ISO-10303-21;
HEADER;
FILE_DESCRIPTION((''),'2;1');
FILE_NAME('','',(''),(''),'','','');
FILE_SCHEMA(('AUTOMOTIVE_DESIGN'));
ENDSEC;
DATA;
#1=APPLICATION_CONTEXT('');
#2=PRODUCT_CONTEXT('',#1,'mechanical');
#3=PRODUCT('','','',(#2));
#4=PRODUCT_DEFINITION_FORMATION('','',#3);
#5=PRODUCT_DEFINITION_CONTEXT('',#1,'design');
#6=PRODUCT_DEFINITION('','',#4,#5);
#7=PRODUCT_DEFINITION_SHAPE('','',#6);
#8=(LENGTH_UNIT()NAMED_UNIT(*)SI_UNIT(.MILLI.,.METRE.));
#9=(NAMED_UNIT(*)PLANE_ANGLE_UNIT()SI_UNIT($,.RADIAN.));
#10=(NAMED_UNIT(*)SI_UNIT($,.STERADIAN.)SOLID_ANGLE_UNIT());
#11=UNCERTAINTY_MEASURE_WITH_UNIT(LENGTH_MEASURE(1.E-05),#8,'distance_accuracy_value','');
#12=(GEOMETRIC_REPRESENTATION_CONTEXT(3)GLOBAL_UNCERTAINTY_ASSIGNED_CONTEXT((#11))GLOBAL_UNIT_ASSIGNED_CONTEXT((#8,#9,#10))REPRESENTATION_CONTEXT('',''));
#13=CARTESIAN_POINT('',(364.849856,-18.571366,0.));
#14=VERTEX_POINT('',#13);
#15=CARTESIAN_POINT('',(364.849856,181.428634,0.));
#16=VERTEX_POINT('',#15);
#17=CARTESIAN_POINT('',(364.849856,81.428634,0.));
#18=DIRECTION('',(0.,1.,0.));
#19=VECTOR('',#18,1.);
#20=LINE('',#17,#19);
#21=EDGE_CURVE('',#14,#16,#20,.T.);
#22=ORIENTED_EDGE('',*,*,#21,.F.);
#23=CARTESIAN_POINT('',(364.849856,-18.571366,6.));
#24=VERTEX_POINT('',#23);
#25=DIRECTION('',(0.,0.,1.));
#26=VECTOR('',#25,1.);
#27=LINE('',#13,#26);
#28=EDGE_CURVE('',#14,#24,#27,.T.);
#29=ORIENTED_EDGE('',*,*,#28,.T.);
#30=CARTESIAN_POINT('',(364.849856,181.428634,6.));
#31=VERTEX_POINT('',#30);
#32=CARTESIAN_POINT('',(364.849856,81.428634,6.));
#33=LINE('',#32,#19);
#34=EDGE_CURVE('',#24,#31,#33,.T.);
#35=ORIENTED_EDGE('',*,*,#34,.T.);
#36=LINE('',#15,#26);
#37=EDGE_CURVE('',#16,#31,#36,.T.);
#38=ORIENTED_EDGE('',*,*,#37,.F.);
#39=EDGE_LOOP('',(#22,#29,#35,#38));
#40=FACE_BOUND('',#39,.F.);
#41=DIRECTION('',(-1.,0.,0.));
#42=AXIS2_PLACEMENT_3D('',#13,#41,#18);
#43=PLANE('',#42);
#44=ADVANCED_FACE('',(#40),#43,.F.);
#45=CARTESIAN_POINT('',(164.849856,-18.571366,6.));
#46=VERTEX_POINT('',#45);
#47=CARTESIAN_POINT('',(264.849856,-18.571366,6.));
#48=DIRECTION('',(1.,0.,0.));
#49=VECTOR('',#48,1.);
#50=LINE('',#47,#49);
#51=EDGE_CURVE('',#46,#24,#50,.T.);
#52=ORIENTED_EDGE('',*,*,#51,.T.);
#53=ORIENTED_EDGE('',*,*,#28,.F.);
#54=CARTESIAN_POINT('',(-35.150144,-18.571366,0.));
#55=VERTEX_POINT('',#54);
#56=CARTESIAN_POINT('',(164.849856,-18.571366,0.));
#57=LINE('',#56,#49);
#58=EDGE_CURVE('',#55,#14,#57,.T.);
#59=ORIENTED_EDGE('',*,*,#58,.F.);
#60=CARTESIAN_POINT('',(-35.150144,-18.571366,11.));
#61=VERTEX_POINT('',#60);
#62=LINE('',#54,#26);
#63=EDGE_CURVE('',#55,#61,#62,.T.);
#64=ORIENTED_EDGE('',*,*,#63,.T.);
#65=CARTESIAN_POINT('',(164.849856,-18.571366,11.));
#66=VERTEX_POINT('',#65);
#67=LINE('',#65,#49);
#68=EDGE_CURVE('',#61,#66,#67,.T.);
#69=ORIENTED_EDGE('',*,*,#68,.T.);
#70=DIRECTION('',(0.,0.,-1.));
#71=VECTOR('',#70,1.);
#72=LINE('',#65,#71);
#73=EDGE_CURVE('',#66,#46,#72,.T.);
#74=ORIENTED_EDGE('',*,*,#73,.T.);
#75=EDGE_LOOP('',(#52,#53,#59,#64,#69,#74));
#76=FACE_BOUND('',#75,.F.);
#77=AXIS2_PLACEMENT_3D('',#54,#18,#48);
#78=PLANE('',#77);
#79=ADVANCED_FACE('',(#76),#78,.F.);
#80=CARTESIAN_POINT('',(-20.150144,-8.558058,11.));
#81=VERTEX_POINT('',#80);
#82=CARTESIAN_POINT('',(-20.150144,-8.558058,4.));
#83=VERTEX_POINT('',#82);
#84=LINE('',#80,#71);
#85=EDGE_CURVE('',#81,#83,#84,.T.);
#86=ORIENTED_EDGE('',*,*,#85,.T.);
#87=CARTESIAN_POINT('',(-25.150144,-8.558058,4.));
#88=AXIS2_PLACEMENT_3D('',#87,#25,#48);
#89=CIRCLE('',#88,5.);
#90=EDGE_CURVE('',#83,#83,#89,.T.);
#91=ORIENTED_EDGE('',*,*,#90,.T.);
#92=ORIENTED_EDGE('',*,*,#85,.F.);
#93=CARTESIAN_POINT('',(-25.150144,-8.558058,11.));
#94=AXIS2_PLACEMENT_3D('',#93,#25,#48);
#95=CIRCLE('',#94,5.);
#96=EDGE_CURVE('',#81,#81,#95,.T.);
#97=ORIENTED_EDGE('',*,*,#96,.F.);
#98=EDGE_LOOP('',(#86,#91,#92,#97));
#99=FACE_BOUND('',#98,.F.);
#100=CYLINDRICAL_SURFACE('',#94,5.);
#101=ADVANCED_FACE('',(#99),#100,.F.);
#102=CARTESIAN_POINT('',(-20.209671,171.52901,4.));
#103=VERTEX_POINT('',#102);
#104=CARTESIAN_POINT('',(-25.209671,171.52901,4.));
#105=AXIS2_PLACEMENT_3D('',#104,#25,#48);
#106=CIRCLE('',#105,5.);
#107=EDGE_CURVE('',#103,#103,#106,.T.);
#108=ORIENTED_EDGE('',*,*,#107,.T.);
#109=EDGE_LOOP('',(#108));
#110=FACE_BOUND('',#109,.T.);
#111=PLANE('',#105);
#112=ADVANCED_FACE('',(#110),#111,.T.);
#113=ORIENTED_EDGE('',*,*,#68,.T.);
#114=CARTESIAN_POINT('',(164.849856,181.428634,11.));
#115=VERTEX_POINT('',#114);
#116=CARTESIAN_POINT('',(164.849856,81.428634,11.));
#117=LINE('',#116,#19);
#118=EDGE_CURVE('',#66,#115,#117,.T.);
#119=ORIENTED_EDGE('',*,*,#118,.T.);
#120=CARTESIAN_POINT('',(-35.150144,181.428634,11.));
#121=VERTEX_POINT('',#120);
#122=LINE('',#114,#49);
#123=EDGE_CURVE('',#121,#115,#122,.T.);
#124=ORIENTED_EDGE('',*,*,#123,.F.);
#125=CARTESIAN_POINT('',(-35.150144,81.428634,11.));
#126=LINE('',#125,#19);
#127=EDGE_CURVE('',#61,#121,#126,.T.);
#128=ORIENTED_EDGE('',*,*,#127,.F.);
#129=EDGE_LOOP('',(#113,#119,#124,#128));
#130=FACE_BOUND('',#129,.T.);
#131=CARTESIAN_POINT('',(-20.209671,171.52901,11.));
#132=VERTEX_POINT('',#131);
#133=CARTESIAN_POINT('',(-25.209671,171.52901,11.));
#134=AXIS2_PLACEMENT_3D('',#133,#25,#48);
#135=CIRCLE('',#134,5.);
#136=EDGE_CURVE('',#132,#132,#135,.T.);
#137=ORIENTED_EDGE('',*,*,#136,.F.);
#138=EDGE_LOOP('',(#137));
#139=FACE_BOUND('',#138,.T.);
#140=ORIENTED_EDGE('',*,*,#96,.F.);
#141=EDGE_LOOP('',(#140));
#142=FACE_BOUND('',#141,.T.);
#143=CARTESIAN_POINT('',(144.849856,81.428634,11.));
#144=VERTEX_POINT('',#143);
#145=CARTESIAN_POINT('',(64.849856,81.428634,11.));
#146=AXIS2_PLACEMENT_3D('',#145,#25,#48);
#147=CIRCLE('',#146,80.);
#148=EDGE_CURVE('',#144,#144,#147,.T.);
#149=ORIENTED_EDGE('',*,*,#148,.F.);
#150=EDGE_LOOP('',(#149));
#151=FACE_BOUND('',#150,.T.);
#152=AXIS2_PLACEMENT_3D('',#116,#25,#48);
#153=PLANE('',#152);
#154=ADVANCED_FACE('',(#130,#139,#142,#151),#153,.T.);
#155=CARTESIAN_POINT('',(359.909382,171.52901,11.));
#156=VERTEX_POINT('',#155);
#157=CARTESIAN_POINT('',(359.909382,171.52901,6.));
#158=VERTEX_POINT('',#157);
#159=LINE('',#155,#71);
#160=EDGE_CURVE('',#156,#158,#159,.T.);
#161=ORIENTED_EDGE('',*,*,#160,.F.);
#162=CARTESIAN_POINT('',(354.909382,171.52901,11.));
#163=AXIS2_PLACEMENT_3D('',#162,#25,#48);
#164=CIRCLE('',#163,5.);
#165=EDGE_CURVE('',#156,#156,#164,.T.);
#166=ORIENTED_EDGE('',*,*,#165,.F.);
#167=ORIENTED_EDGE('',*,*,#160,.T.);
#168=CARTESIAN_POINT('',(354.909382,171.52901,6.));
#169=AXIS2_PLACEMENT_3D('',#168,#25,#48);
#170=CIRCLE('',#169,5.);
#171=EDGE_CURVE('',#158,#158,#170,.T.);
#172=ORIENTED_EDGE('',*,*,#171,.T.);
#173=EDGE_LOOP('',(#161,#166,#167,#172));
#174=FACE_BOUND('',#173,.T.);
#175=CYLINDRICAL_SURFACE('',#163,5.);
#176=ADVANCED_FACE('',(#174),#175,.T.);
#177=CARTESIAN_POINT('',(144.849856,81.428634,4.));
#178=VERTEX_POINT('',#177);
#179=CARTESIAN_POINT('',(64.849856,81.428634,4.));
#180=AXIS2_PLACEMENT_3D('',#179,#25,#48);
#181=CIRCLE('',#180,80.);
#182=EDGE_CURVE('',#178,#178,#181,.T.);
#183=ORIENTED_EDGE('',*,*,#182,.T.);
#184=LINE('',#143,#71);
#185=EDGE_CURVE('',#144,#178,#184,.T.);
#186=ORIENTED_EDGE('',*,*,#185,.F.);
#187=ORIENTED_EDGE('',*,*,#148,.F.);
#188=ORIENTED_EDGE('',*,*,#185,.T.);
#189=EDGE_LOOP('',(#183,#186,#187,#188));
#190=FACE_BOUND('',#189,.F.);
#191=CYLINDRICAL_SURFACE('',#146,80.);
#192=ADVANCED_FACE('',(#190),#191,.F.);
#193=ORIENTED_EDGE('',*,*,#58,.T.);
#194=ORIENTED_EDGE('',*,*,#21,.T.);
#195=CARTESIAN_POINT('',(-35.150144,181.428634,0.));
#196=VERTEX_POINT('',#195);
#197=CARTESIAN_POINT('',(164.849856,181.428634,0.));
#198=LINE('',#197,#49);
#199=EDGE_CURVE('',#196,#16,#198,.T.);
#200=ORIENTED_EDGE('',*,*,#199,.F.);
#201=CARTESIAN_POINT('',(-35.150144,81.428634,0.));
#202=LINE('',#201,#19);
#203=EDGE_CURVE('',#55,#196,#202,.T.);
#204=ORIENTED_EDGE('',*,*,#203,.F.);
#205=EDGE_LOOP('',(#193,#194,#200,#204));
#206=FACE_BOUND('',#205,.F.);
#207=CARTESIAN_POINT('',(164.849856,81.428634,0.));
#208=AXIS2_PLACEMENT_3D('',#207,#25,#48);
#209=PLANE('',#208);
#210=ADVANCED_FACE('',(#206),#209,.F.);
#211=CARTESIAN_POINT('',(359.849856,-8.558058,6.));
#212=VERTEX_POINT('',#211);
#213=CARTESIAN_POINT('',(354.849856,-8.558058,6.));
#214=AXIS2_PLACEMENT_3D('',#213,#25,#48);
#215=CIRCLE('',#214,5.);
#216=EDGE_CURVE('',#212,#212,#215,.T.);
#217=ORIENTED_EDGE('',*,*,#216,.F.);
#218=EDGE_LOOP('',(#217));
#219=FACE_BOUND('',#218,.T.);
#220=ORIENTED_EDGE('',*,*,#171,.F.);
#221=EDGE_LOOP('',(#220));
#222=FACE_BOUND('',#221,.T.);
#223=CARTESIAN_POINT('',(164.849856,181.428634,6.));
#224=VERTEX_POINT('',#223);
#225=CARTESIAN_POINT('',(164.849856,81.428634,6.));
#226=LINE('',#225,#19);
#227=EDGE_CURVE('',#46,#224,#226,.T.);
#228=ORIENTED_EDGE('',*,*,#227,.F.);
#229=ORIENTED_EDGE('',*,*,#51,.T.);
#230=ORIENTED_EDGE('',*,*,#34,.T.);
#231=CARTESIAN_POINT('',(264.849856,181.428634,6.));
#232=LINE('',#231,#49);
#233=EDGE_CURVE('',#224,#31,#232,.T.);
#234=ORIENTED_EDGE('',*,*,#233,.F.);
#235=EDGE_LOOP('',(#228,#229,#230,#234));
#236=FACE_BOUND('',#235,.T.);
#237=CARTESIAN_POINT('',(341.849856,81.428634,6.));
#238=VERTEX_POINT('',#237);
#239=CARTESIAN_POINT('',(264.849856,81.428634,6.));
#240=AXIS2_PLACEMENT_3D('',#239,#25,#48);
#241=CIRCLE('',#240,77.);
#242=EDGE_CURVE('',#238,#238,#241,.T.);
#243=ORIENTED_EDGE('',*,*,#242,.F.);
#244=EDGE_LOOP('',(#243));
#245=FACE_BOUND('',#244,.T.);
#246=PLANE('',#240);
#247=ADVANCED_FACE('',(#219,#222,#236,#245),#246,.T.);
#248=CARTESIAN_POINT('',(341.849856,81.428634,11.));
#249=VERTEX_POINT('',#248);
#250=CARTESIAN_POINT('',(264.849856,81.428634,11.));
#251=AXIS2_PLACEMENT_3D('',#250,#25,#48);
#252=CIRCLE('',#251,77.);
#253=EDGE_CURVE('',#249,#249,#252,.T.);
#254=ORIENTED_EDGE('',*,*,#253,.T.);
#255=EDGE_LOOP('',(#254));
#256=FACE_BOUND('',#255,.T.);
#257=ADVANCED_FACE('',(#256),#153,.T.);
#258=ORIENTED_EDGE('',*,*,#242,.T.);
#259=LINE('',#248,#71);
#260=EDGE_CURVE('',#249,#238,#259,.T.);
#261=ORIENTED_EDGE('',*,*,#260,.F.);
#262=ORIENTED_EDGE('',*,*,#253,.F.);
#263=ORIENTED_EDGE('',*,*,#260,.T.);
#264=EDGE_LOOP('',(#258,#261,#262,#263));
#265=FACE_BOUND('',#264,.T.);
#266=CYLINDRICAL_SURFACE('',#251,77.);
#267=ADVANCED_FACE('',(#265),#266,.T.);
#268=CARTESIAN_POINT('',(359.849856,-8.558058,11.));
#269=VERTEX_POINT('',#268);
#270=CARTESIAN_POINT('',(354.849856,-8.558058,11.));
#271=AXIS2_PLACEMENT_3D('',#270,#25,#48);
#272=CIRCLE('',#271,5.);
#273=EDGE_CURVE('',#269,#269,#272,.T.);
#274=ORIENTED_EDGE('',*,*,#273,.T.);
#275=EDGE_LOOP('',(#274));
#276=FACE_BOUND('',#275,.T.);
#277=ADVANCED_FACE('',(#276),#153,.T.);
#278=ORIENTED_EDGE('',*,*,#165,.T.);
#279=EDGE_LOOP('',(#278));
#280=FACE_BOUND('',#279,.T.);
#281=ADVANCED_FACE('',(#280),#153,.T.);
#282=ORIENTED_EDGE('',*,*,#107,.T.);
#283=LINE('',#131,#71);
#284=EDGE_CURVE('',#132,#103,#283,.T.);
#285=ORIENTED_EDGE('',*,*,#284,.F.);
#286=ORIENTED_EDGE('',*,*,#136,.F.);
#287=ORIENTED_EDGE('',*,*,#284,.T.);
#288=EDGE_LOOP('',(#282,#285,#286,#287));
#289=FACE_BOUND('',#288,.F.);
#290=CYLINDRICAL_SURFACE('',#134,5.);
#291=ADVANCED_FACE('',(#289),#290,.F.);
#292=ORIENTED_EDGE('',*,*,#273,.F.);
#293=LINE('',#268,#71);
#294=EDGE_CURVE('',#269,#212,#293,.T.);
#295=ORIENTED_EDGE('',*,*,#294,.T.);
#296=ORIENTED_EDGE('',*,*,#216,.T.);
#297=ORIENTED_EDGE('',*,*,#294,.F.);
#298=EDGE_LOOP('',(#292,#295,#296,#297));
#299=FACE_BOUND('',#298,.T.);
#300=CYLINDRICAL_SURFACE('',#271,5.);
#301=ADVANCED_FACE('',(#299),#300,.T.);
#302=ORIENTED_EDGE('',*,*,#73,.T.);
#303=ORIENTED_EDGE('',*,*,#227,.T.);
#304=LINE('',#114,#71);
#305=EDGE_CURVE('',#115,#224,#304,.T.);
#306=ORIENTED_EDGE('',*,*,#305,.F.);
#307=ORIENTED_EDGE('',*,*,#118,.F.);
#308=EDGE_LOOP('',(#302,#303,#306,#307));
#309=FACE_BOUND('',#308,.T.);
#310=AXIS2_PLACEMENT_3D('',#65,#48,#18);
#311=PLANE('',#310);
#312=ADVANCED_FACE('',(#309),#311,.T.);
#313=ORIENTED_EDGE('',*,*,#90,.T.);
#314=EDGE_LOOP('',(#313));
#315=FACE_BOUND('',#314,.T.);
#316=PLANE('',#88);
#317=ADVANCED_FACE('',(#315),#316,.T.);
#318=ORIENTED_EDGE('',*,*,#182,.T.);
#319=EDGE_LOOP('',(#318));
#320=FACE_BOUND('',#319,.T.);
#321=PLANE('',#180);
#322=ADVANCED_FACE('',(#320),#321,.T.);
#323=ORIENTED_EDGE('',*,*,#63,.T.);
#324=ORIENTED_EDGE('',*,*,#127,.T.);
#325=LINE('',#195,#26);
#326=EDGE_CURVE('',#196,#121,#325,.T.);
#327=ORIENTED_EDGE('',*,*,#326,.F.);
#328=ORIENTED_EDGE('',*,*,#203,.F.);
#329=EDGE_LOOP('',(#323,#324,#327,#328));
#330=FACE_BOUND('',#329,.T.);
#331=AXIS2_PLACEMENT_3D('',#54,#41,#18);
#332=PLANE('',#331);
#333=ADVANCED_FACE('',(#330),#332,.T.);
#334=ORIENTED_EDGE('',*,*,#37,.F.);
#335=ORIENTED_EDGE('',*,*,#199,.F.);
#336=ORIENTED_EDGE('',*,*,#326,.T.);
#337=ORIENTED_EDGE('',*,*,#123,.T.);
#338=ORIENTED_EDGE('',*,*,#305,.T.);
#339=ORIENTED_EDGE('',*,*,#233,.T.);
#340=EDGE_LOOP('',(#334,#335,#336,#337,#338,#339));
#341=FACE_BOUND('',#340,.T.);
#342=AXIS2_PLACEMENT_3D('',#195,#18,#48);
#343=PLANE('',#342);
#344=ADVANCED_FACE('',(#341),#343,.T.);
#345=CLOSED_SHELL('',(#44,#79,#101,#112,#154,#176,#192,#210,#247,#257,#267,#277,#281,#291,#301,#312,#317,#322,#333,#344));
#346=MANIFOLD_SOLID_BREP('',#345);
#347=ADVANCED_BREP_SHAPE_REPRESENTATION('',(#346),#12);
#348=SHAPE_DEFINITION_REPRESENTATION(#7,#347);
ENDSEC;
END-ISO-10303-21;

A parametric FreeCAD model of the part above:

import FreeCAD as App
import Part
import Sketcher
Q = App.Units.Quantity


def add_polygon(sketch, points):
    """Adds a closed chain of lines whose ends are joined by coincident constraints."""
    first, n = sketch.GeometryCount, len(points)
    for a, b in zip(points, points[1:] + points[:1]):
        sketch.addGeometry(Part.LineSegment(App.Vector(*a, 0), App.Vector(*b, 0)), False)
    for i in range(n):
        sketch.addConstraint(Sketcher.Constraint("Coincident", first + i, 2, first + (i + 1) % n, 1))

doc = App.newDocument("Part")
body = doc.addObject("PartDesign::Body", "Body")

sketch1 = doc.addObject("Sketcher::SketchObject", "Sketch")
body.addObject(sketch1)
sketch1.AttachmentSupport = (doc.XY_Plane, [""])
sketch1.MapMode = "FlatFace"
add_polygon(sketch1, [(-35, 181), (-35, -19), (365, -19), (365, 181)])
sketch1.addConstraint(Sketcher.Constraint("Vertical", 0))
sketch1.addConstraint(Sketcher.Constraint("Horizontal", 1))
sketch1.addConstraint(Sketcher.Constraint("Vertical", 2))
sketch1.addConstraint(Sketcher.Constraint("Horizontal", 3))
sketch1.addConstraint(Sketcher.Constraint("DistanceX", 1, 1, 1, 2, Q("400 mm")))
sketch1.addConstraint(Sketcher.Constraint("DistanceY", 0, 2, 0, 1, Q("200 mm")))
sketch1.addConstraint(Sketcher.Constraint("DistanceX", 0, 2, -1, 1, Q("35.150144 mm")))
sketch1.addConstraint(Sketcher.Constraint("DistanceY", 0, 2, -1, 1, Q("18.571366 mm")))
pad1 = doc.addObject("PartDesign::Pad", "Pad")
body.addObject(pad1)
pad1.Profile = sketch1
pad1.Length = 11

sketch2 = doc.addObject("Sketcher::SketchObject", "Sketch001")
body.addObject(sketch2)
sketch2.AttachmentSupport = (doc.XY_Plane, [""])
sketch2.MapMode = "FlatFace"
sketch2.AttachmentOffset = App.Placement(App.Vector(0, 0, 11), App.Rotation())
sketch2.addGeometry(Part.Circle(App.Vector(-25, -9, 0), App.Vector(0, 0, 1), 5), False)
sketch2.addGeometry(Part.Circle(App.Vector(65, 81, 0), App.Vector(0, 0, 1), 80), False)
sketch2.addGeometry(Part.Circle(App.Vector(-25, 172, 0), App.Vector(0, 0, 1), 5), False)
sketch2.addConstraint(Sketcher.Constraint("Equal", 0, 2))
sketch2.addConstraint(Sketcher.Constraint("Diameter", 0, Q("10 mm")))
sketch2.addConstraint(Sketcher.Constraint("Diameter", 1, Q("160 mm")))
sketch2.addConstraint(Sketcher.Constraint("DistanceX", 0, 3, 1, 3, Q("90 mm")))
sketch2.addConstraint(Sketcher.Constraint("DistanceY", 0, 3, -1, 1, Q("8.558058 mm")))
sketch2.addConstraint(Sketcher.Constraint("DistanceX", 2, 3, -1, 1, Q("25.209671 mm")))
sketch2.addConstraint(Sketcher.Constraint("DistanceY", -1, 1, 2, 3, Q("171.52901 mm")))
sketch2.addConstraint(Sketcher.Constraint("DistanceX", 0, 3, -1, 1, Q("25.150144 mm")))
sketch2.addConstraint(Sketcher.Constraint("DistanceY", -1, 1, 1, 3, Q("81.428634 mm")))
pocket1 = doc.addObject("PartDesign::Pocket", "Pocket")
body.addObject(pocket1)
pocket1.Profile = sketch2
pocket1.Length = 7

sketch3 = doc.addObject("Sketcher::SketchObject", "Sketch002")
body.addObject(sketch3)
sketch3.AttachmentSupport = (doc.XY_Plane, [""])
sketch3.MapMode = "FlatFace"
sketch3.AttachmentOffset = App.Placement(App.Vector(0, 0, 11), App.Rotation())
add_polygon(sketch3, [(165, 181), (165, -19), (365, -19), (365, 181)])
sketch3.addGeometry(Part.Circle(App.Vector(265, 81, 0), App.Vector(0, 0, 1), 77), False)
sketch3.addGeometry(Part.Circle(App.Vector(355, -9, 0), App.Vector(0, 0, 1), 5), False)
sketch3.addGeometry(Part.Circle(App.Vector(355, 172, 0), App.Vector(0, 0, 1), 5), False)
sketch3.addConstraint(Sketcher.Constraint("Vertical", 0))
sketch3.addConstraint(Sketcher.Constraint("Horizontal", 1))
sketch3.addConstraint(Sketcher.Constraint("Vertical", 2))
sketch3.addConstraint(Sketcher.Constraint("Horizontal", 3))
sketch3.addConstraint(Sketcher.Constraint("Equal", 5, 6))
sketch3.addConstraint(Sketcher.Constraint("Equal", 3, 0))
sketch3.addConstraint(Sketcher.Constraint("Diameter", 4, Q("154 mm")))
sketch3.addConstraint(Sketcher.Constraint("Diameter", 5, Q("10 mm")))
sketch3.addConstraint(Sketcher.Constraint("DistanceX", 1, 1, 1, 2, Q("200 mm")))
sketch3.addConstraint(Sketcher.Constraint("DistanceX", 4, 3, 5, 3, Q("90 mm")))
sketch3.addConstraint(Sketcher.Constraint("DistanceX", 0, 2, 4, 3, Q("100 mm")))
sketch3.addConstraint(Sketcher.Constraint("DistanceY", 0, 2, 4, 3, Q("100 mm")))
sketch3.addConstraint(Sketcher.Constraint("DistanceY", 5, 3, -1, 1, Q("8.558058 mm")))
sketch3.addConstraint(Sketcher.Constraint("DistanceX", -1, 1, 6, 3, Q("354.909382 mm")))
sketch3.addConstraint(Sketcher.Constraint("DistanceY", -1, 1, 6, 3, Q("171.52901 mm")))
sketch3.addConstraint(Sketcher.Constraint("DistanceY", 5, 3, 2, 2, Q("189.986692 mm")))
sketch3.addConstraint(Sketcher.Constraint("DistanceX", -1, 1, 4, 3, Q("264.849856 mm")))
pocket2 = doc.addObject("PartDesign::Pocket", "Pocket001")
body.addObject(pocket2)
pocket2.Profile = sketch3
pocket2.Length = 5

doc.recompute()
